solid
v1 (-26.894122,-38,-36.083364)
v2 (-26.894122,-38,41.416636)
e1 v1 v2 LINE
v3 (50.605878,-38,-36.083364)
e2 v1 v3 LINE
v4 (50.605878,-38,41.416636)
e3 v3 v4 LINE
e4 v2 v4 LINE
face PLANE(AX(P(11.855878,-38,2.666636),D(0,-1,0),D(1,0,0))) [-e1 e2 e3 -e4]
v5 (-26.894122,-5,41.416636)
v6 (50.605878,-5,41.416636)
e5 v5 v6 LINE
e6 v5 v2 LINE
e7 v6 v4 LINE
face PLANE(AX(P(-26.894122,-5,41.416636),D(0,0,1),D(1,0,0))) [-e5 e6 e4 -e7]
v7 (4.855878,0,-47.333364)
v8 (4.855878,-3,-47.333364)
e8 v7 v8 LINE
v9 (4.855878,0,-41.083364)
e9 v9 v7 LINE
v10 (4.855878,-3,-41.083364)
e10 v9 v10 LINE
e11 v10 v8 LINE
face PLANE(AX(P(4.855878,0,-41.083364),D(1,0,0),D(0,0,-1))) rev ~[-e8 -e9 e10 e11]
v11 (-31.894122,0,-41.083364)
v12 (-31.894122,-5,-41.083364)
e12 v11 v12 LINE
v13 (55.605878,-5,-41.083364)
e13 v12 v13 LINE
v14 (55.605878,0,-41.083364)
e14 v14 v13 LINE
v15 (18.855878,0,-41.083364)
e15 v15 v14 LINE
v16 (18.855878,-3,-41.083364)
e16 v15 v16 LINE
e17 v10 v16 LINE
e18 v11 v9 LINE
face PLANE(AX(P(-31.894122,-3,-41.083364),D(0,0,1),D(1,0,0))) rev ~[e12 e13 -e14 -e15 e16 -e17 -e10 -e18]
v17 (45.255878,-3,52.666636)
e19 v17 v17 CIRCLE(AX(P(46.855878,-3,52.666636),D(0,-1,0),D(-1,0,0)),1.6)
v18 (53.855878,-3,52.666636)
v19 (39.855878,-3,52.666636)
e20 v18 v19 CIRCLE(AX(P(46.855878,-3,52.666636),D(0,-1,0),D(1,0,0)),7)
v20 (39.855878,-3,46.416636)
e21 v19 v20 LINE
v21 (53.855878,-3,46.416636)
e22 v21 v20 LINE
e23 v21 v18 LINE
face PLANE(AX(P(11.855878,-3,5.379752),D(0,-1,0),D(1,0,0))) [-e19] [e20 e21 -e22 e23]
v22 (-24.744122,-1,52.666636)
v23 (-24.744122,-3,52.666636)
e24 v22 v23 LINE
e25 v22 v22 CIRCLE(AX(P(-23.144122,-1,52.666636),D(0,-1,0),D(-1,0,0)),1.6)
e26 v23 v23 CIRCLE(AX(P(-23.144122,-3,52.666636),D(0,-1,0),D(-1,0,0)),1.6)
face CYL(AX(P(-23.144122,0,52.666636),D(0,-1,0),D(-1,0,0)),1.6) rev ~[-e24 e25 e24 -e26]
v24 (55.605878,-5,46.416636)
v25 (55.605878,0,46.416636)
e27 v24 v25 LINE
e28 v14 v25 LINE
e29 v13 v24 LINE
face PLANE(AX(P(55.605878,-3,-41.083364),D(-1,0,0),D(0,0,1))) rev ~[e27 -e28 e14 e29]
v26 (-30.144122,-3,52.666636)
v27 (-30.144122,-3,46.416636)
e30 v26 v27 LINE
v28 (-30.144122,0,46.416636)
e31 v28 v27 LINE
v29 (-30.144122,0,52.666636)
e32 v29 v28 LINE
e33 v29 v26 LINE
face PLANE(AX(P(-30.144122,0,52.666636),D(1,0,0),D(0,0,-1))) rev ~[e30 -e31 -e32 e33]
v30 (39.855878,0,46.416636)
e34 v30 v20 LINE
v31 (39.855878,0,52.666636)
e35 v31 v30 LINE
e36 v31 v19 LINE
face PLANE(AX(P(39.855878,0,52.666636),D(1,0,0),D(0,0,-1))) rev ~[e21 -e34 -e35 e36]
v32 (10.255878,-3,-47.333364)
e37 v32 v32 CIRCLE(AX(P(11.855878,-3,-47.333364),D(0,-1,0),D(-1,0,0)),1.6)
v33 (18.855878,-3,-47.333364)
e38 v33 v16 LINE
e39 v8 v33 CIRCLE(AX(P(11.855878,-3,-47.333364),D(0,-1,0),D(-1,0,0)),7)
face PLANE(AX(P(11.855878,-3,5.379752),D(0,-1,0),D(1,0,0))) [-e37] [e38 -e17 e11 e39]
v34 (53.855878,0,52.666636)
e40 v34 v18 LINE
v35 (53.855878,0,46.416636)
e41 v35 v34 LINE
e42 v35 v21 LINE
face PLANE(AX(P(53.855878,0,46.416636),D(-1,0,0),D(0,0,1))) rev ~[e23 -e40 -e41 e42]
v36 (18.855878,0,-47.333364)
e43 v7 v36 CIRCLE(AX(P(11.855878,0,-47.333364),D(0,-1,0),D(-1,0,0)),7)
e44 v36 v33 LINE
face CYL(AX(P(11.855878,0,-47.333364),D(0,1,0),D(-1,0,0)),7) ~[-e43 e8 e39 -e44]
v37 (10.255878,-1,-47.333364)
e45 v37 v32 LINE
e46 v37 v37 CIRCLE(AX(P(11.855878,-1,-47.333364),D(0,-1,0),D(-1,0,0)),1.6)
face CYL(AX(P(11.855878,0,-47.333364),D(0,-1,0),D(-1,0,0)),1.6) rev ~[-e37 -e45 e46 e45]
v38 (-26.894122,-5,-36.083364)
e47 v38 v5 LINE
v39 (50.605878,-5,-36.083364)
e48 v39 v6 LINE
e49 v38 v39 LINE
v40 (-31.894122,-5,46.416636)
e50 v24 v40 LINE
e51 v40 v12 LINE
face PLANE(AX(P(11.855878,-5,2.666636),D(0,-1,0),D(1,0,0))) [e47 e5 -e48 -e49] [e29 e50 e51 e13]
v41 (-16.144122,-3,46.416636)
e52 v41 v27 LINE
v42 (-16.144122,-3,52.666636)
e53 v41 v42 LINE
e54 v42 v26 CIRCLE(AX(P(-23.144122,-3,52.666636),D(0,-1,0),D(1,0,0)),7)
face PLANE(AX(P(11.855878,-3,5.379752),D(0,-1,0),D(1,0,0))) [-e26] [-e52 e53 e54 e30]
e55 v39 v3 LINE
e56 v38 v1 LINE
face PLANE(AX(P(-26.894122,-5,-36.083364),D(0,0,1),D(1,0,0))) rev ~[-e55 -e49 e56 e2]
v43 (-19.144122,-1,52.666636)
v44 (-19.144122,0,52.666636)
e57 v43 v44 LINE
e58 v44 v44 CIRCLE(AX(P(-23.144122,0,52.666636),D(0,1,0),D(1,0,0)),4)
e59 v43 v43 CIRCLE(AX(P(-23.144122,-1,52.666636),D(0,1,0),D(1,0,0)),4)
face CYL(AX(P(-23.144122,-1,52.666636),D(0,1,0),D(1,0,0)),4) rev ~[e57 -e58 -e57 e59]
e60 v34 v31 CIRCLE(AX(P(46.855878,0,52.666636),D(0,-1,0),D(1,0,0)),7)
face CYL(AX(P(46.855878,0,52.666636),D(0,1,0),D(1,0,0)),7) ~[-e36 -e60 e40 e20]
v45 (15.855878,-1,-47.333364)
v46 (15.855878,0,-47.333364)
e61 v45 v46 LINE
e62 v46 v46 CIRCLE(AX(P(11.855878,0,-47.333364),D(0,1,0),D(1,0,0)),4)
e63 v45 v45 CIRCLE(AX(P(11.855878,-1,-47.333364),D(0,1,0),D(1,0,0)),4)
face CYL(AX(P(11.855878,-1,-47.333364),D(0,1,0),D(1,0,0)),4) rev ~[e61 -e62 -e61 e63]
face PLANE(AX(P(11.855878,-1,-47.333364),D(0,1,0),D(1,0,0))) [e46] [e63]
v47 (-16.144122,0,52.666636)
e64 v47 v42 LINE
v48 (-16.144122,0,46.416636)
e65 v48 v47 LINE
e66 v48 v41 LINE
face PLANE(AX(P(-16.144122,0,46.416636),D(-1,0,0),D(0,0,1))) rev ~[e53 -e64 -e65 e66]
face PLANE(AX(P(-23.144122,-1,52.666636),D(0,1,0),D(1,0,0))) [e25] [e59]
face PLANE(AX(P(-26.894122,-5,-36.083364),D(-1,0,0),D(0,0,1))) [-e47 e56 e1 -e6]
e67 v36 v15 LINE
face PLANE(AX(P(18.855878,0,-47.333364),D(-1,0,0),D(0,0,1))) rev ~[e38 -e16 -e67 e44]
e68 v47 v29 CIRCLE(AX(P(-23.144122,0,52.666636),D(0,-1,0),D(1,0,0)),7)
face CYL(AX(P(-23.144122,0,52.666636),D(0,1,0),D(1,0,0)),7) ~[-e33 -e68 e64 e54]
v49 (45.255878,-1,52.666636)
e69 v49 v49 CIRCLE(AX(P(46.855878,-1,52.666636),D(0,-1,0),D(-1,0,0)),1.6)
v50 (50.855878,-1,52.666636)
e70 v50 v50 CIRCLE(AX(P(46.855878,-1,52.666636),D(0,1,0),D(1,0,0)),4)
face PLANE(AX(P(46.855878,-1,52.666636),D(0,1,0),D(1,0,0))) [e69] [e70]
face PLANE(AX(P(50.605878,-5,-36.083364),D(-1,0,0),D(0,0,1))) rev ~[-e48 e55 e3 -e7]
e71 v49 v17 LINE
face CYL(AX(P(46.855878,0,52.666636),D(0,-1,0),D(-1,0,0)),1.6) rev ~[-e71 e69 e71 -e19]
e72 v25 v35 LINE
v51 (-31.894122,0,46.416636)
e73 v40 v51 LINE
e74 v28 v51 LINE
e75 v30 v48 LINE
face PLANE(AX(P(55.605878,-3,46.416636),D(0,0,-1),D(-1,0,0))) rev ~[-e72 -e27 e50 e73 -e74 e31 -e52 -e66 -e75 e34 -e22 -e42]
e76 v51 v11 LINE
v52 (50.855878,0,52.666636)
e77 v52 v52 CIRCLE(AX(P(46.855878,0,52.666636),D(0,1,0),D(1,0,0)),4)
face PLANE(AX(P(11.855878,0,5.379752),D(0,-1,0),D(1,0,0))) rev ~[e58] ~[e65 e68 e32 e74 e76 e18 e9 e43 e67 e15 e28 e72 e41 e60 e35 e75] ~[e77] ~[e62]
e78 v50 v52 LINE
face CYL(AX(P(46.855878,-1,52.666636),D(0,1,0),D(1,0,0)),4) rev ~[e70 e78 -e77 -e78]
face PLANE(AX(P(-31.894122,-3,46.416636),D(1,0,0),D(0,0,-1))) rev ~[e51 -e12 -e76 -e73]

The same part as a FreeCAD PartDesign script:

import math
import FreeCAD as App
import Part
import Sketcher
Q = App.Units.Quantity


def add_polygon(sketch, points):
    """Adds a closed chain of lines whose ends are joined by coincident constraints."""
    first, n = sketch.GeometryCount, len(points)
    for a, b in zip(points, points[1:] + points[:1]):
        sketch.addGeometry(Part.LineSegment(App.Vector(*a, 0), App.Vector(*b, 0)), False)
    for i in range(n):
        sketch.addConstraint(Sketcher.Constraint("Coincident", first + i, 2, first + (i + 1) % n, 1))

doc = App.newDocument("Part")
body = doc.addObject("PartDesign::Body", "Body")

# Sketch on XZ plane
sketch1 = body.newObject("Sketcher::SketchObject", "Sketch")
sketch1.AttachmentSupport = (doc.getObject("XZ_Plane"), [""])
sketch1.MapMode = "FlatFace"
sketch1.addGeometry(Part.LineSegment(App.Vector(-31.9, 46.4, 0), App.Vector(-31.9, -41.1, 0)), False)
sketch1.addGeometry(Part.LineSegment(App.Vector(-31.9, -41.1, 0), App.Vector(4.9, -41.1, 0)), False)
sketch1.addGeometry(Part.LineSegment(App.Vector(4.9, -41.1, 0), App.Vector(4.9, -47.3, 0)), False)
sketch1.addGeometry(Part.ArcOfCircle(Part.Circle(App.Vector(11.9, -47.3, 0), App.Vector(0, 0, 1), 7), math.radians(180), math.radians(360)), False)
sketch1.addGeometry(Part.LineSegment(App.Vector(18.9, -47.3, 0), App.Vector(18.9, -41.1, 0)), False)
sketch1.addGeometry(Part.LineSegment(App.Vector(18.9, -41.1, 0), App.Vector(55.6, -41.1, 0)), False)
sketch1.addGeometry(Part.LineSegment(App.Vector(55.6, -41.1, 0), App.Vector(55.6, 46.4, 0)), False)
sketch1.addGeometry(Part.LineSegment(App.Vector(55.6, 46.4, 0), App.Vector(53.9, 46.4, 0)), False)
sketch1.addGeometry(Part.LineSegment(App.Vector(53.9, 46.4, 0), App.Vector(53.9, 52.7, 0)), False)
sketch1.addGeometry(Part.ArcOfCircle(Part.Circle(App.Vector(46.9, 52.7, 0), App.Vector(0, 0, 1), 7), math.radians(0), math.radians(180)), False)
sketch1.addGeometry(Part.LineSegment(App.Vector(39.9, 52.7, 0), App.Vector(39.9, 46.4, 0)), False)
sketch1.addGeometry(Part.LineSegment(App.Vector(39.9, 46.4, 0), App.Vector(-16.1, 46.4, 0)), False)
sketch1.addGeometry(Part.LineSegment(App.Vector(-16.1, 46.4, 0), App.Vector(-16.1, 52.7, 0)), False)
sketch1.addGeometry(Part.ArcOfCircle(Part.Circle(App.Vector(-23.1, 52.7, 0), App.Vector(0, 0, 1), 7), math.radians(0), math.radians(180)), False)
sketch1.addGeometry(Part.LineSegment(App.Vector(-30.1, 52.7, 0), App.Vector(-30.1, 46.4, 0)), False)
sketch1.addGeometry(Part.LineSegment(App.Vector(-30.1, 46.4, 0), App.Vector(-31.9, 46.4, 0)), False)
sketch1.addConstraint(Sketcher.Constraint("Coincident", 0, 2, 1, 1))
sketch1.addConstraint(Sketcher.Constraint("Coincident", 1, 2, 2, 1))
sketch1.addConstraint(Sketcher.Constraint("Tangent", 2, 2, 3, 1))
sketch1.addConstraint(Sketcher.Constraint("Tangent", 3, 2, 4, 1))
sketch1.addConstraint(Sketcher.Constraint("Coincident", 4, 2, 5, 1))
sketch1.addConstraint(Sketcher.Constraint("Coincident", 5, 2, 6, 1))
sketch1.addConstraint(Sketcher.Constraint("Coincident", 6, 2, 7, 1))
sketch1.addConstraint(Sketcher.Constraint("Coincident", 7, 2, 8, 1))
sketch1.addConstraint(Sketcher.Constraint("Tangent", 8, 2, 9, 1))
sketch1.addConstraint(Sketcher.Constraint("Tangent", 9, 2, 10, 1))
sketch1.addConstraint(Sketcher.Constraint("Coincident", 10, 2, 11, 1))
sketch1.addConstraint(Sketcher.Constraint("Coincident", 11, 2, 12, 1))
sketch1.addConstraint(Sketcher.Constraint("Tangent", 12, 2, 13, 1))
sketch1.addConstraint(Sketcher.Constraint("Tangent", 13, 2, 14, 1))
sketch1.addConstraint(Sketcher.Constraint("Coincident", 14, 2, 15, 1))
sketch1.addConstraint(Sketcher.Constraint("Coincident", 15, 2, 0, 1))
sketch1.addConstraint(Sketcher.Constraint("Vertical", 0))
sketch1.addConstraint(Sketcher.Constraint("Horizontal", 1))
sketch1.addConstraint(Sketcher.Constraint("Vertical", 2))
sketch1.addConstraint(Sketcher.Constraint("Vertical", 4))
sketch1.addConstraint(Sketcher.Constraint("Horizontal", 5))
sketch1.addConstraint(Sketcher.Constraint("Vertical", 6))
sketch1.addConstraint(Sketcher.Constraint("Horizontal", 7))
sketch1.addConstraint(Sketcher.Constraint("Vertical", 8))
sketch1.addConstraint(Sketcher.Constraint("Vertical", 10))
sketch1.addConstraint(Sketcher.Constraint("Horizontal", 11))
sketch1.addConstraint(Sketcher.Constraint("Vertical", 12))
sketch1.addConstraint(Sketcher.Constraint("Vertical", 14))
sketch1.addConstraint(Sketcher.Constraint("Horizontal", 15))
sketch1.addConstraint(Sketcher.Constraint("Equal", 3, 9))
sketch1.addConstraint(Sketcher.Constraint("Equal", 9, 13))
sketch1.addConstraint(Sketcher.Constraint("Horizontal", 9, 3, 13, 3))
sketch1.addConstraint(Sketcher.Constraint("Horizontal", 1, 2, 4, 2))
sketch1.addConstraint(Sketcher.Constraint("Horizontal", 7, 2, 10, 2))
sketch1.addConstraint(Sketcher.Constraint("Horizontal", 11, 2, 14, 2))
sketch1.addConstraint(Sketcher.Constraint("Equal", 1, 5))
sketch1.addConstraint(Sketcher.Constraint("Equal", 7, 15))
sketch1.addConstraint(Sketcher.Constraint("Equal", 4, 8))
sketch1.addConstraint(Sketcher.Constraint("Radius", 3, Q("7 mm")))
sketch1.addConstraint(Sketcher.Constraint("DistanceX", 11, 2, 11, 1, Q("56 mm")))
sketch1.addConstraint(Sketcher.Constraint("DistanceY", 0, 2, 0, 1, Q("87.5 mm")))
sketch1.addConstraint(Sketcher.Constraint("DistanceY", 3, 3, 9, 3, Q("100 mm")))
sketch1.addConstraint(Sketcher.Constraint("DistanceX", 1, 1, 1, 2, Q("36.75 mm")))
sketch1.addConstraint(Sketcher.Constraint("DistanceX", -1, 1, 3, 3, Q("11.855878 mm")))
sketch1.addConstraint(Sketcher.Constraint("DistanceY", 3, 3, -1, 1, Q("47.333364 mm")))
pad1 = body.newObject("PartDesign::Pad", "Pad")
pad1.Profile = sketch1
pad1.Length = 3

# Sketch on XZ plane
sketch2 = body.newObject("Sketcher::SketchObject", "Sketch001")
sketch2.AttachmentSupport = (doc.getObject("XZ_Plane"), [""])
sketch2.MapMode = "FlatFace"
sketch2.addGeometry(Part.Circle(App.Vector(-23.1, 52.7, 0), App.Vector(0, 0, 1), 1.6), False)
sketch2.addGeometry(Part.Circle(App.Vector(46.9, 52.7, 0), App.Vector(0, 0, 1), 1.6), False)
sketch2.addGeometry(Part.Circle(App.Vector(11.9, -47.3, 0), App.Vector(0, 0, 1), 1.6), False)
sketch2.addConstraint(Sketcher.Constraint("Equal", 0, 1))
sketch2.addConstraint(Sketcher.Constraint("Equal", 1, 2))
sketch2.addConstraint(Sketcher.Constraint("Horizontal", 0, 3, 1, 3))
sketch2.addConstraint(Sketcher.Constraint("Diameter", 0, Q("3.2 mm")))
sketch2.addConstraint(Sketcher.Constraint("DistanceX", 0, 3, 1, 3, Q("70 mm")))
sketch2.addConstraint(Sketcher.Constraint("DistanceX", 0, 3, 2, 3, Q("35 mm")))
sketch2.addConstraint(Sketcher.Constraint("DistanceY", 2, 3, 0, 3, Q("100 mm")))
sketch2.addConstraint(Sketcher.Constraint("DistanceX", 0, 3, -1, 1, Q("23.144122 mm")))
sketch2.addConstraint(Sketcher.Constraint("DistanceY", -1, 1, 0, 3, Q("52.666636 mm")))
doc.recompute()
hole = body.newObject("PartDesign::Hole", "Hole")
hole.Profile = sketch2
hole.ThreadType = "None"
hole.Diameter = 3.2
hole.DepthType = "ThroughAll"
hole.HoleCutType = "Counterbore"
hole.HoleCutDiameter = 8
hole.HoleCutDepth = 1
hole.Reversed = True

# Sketch on XZ plane
sketch3 = body.newObject("Sketcher::SketchObject", "Sketch002")
sketch3.AttachmentSupport = (doc.getObject("XZ_Plane"), [""])
sketch3.MapMode = "FlatFace"
sketch3.AttachmentOffset = App.Placement(App.Vector(0, 0, 3), App.Rotation())
add_polygon(sketch3, [(-32, 46), (-32, -41), (56, -41), (56, 46)])  # lines 0-3
sketch3.addConstraint(Sketcher.Constraint("Vertical", 0))
sketch3.addConstraint(Sketcher.Constraint("Horizontal", 1))
sketch3.addConstraint(Sketcher.Constraint("Vertical", 2))
sketch3.addConstraint(Sketcher.Constraint("Horizontal", 3))
sketch3.addConstraint(Sketcher.Constraint("Equal", 3, 0))
sketch3.addConstraint(Sketcher.Constraint("DistanceX", 1, 1, 1, 2, Q("87.5 mm")))
sketch3.addConstraint(Sketcher.Constraint("DistanceX", 0, 2, -1, 1, Q("31.894122 mm")))
sketch3.addConstraint(Sketcher.Constraint("DistanceY", 0, 2, -1, 1, Q("41.083364 mm")))
pad2 = body.newObject("PartDesign::Pad", "Pad001")
pad2.Profile = sketch3
pad2.Length = 2

# Sketch on XZ plane
sketch4 = body.newObject("Sketcher::SketchObject", "Sketch003")
sketch4.AttachmentSupport = (doc.getObject("XZ_Plane"), [""])
sketch4.MapMode = "FlatFace"
sketch4.AttachmentOffset = App.Placement(App.Vector(0, 0, 5), App.Rotation())
add_polygon(sketch4, [(-27, 41), (-27, -36), (51, -36), (51, 41)])  # lines 0-3
sketch4.addConstraint(Sketcher.Constraint("Vertical", 0))
sketch4.addConstraint(Sketcher.Constraint("Horizontal", 1))
sketch4.addConstraint(Sketcher.Constraint("Vertical", 2))
sketch4.addConstraint(Sketcher.Constraint("Horizontal", 3))
sketch4.addConstraint(Sketcher.Constraint("Equal", 3, 0))
sketch4.addConstraint(Sketcher.Constraint("DistanceX", 1, 1, 1, 2, Q("77.5 mm")))
sketch4.addConstraint(Sketcher.Constraint("DistanceX", 0, 2, -1, 1, Q("26.894122 mm")))
sketch4.addConstraint(Sketcher.Constraint("DistanceY", 0, 2, -1, 1, Q("36.083364 mm")))
pad3 = body.newObject("PartDesign::Pad", "Pad002")
pad3.Profile = sketch4
pad3.Length = 33

doc.recompute()
